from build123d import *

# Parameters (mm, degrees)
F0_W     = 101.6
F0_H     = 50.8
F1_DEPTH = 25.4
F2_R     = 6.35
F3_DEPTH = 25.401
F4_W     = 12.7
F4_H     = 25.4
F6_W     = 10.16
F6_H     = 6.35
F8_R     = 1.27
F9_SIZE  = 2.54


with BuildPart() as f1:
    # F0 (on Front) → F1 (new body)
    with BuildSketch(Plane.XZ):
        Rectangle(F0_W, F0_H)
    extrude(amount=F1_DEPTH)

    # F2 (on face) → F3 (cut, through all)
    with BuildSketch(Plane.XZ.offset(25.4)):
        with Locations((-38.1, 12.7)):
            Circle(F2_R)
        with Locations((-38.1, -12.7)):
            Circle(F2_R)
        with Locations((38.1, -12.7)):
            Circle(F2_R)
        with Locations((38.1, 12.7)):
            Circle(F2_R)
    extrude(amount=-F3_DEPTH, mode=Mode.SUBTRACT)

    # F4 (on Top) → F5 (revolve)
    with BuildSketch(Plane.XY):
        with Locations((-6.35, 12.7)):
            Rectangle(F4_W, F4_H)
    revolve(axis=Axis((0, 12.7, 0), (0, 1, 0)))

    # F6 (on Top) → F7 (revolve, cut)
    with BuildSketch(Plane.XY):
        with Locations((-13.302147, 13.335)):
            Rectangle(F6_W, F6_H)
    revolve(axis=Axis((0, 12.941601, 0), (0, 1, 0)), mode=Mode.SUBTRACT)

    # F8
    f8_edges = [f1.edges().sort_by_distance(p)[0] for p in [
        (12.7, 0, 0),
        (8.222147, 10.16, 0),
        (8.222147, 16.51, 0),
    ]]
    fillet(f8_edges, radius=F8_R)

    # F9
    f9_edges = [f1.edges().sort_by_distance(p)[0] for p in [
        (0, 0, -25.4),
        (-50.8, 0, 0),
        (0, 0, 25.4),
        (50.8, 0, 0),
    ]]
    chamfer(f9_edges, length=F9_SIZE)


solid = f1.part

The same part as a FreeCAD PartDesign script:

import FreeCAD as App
import Part
import Sketcher
Q = App.Units.Quantity


def edges_at(feature, points):
    """Names of the edges that pass closest to the given points."""
    edges = feature.Shape.Edges
    near = lambda p: min(range(len(edges)), key=lambda i: edges[i].distToShape(Part.Vertex(*p))[0])
    return sorted({f"Edge{near(p) + 1}" for p in points})


def add_polygon(sketch, points):
    """Adds a closed chain of lines whose ends are joined by coincident constraints."""
    first, n = sketch.GeometryCount, len(points)
    for a, b in zip(points, points[1:] + points[:1]):
        sketch.addGeometry(Part.LineSegment(App.Vector(*a, 0), App.Vector(*b, 0)), False)
    for i in range(n):
        sketch.addConstraint(Sketcher.Constraint("Coincident", first + i, 2, first + (i + 1) % n, 1))

doc = App.newDocument("Part")
params = doc.addObject("Spreadsheet::Sheet", "Params")
for row, (alias, value) in enumerate([
    ("sketch1_width", "4 in"),
    ("sketch1_height", "2 in"),
    ("pad1_length", "1 in"),
    ("sketch2_diameter", "0.5 in"),
    ("sketch3_height", "1 in"),
    ("sketch3_width", "0.5 in"),
    ("revolution_angle", "360 deg"),
    ("sketch4_width", "0.4 in"),
    ("sketch4_height", "0.25 in"),
    ("groove_angle", "360 deg"),
    ("fillet_radius", "0.05 in"),
    ("chamfer_size", "0.1 in"),
], start=1):
    params.set(f"A{row}", alias)
    params.set(f"B{row}", "=" + value)
    params.setAlias(f"B{row}", alias)

body = doc.addObject("PartDesign::Body", "Body")

sketch1 = doc.addObject("Sketcher::SketchObject", "Sketch")
body.addObject(sketch1)
sketch1.AttachmentSupport = (doc.XZ_Plane, [""])
sketch1.MapMode = "FlatFace"
add_polygon(sketch1, [(-51, 25), (-51, -25), (51, -25), (51, 25)])
sketch1.addConstraint([
    Sketcher.Constraint("Vertical", 0),
    Sketcher.Constraint("Horizontal", 1),
    Sketcher.Constraint("Vertical", 2),
    Sketcher.Constraint("Horizontal", 3),
    Sketcher.Constraint("Symmetric", 0, 2, 2, 2, -1, 1),
    Sketcher.Constraint("DistanceX", 1, 1, 1, 2, Q("4 in")),
    Sketcher.Constraint("DistanceY", 0, 2, 0, 1, Q("2 in")),
])
sketch1.setExpression("Constraints[9]", "Params.sketch1_width")
sketch1.setExpression("Constraints[10]", "Params.sketch1_height")
pad1 = doc.addObject("PartDesign::Pad", "Pad")
body.addObject(pad1)
pad1.Profile = sketch1
pad1.setExpression("Length", "Params.pad1_length")

sketch2 = doc.addObject("Sketcher::SketchObject", "Sketch001")
body.addObject(sketch2)
sketch2.AttachmentSupport = (doc.XZ_Plane, [""])
sketch2.MapMode = "FlatFace"
sketch2.AttachmentOffset = App.Placement(App.Vector(0, 0, 1 * 25.4), App.Rotation())
sketch2.addGeometry([
    Part.Circle(App.Vector(-38, 13, 0), App.Vector(0, 0, 1), 6),
    Part.Circle(App.Vector(-38, -13, 0), App.Vector(0, 0, 1), 6),
    Part.Circle(App.Vector(38, -13, 0), App.Vector(0, 0, 1), 6),
    Part.Circle(App.Vector(38, 13, 0), App.Vector(0, 0, 1), 6),
], False)
sketch2.addConstraint([
    Sketcher.Constraint("Equal", 0, 1),
    Sketcher.Constraint("Equal", 1, 2),
    Sketcher.Constraint("Equal", 2, 3),
    Sketcher.Constraint("Symmetric", 0, 3, 2, 3, -1, 1),
    Sketcher.Constraint("Symmetric", 1, 3, 3, 3, -1, 1),
    Sketcher.Constraint("Symmetric", 1, 3, 2, 3, -2),
    Sketcher.Constraint("Diameter", 0, Q("0.5 in")),
    Sketcher.Constraint("DistanceY", 1, 3, 0, 3, Q("1 in")),
    Sketcher.Constraint("DistanceX", 1, 3, 2, 3, Q("3 in")),
])
sketch2.setExpression("Constraints[6]", "Params.sketch2_diameter")
pocket1 = doc.addObject("PartDesign::Pocket", "Pocket")
body.addObject(pocket1)
pocket1.Profile = sketch2
pocket1.Type = "ThroughAll"

sketch3 = doc.addObject("Sketcher::SketchObject", "Sketch002")
body.addObject(sketch3)
sketch3.AttachmentSupport = (doc.XY_Plane, [""])
sketch3.MapMode = "FlatFace"
add_polygon(sketch3, [(-13, 25), (-13, 0), (0, 0), (0, 25)])
sketch3.addConstraint([
    Sketcher.Constraint("Vertical", 0),
    Sketcher.Constraint("Horizontal", 1),
    Sketcher.Constraint("Vertical", 2),
    Sketcher.Constraint("Horizontal", 3),
    Sketcher.Constraint("Coincident", 1, 2, -1, 1),
    Sketcher.Constraint("DistanceY", 0, 2, 0, 1, Q("1 in")),
    Sketcher.Constraint("DistanceX", 1, 1, 1, 2, Q("0.5 in")),
])
sketch3.setExpression("Constraints[9]", "Params.sketch3_height")
sketch3.setExpression("Constraints[10]", "Params.sketch3_width")
revolution = doc.addObject("PartDesign::Revolution", "Revolution")
body.addObject(revolution)
revolution.Profile = sketch3
revolution.ReferenceAxis = (sketch3, ["V_Axis"])
revolution.setExpression("Angle", "Params.revolution_angle")

sketch4 = doc.addObject("Sketcher::SketchObject", "Sketch003")
body.addObject(sketch4)
sketch4.AttachmentSupport = (doc.XY_Plane, [""])
sketch4.MapMode = "FlatFace"
add_polygon(sketch4, [(-18, 17), (-18, 10), (-8, 10), (-8, 17)])
sketch4.addConstraint([
    Sketcher.Constraint("Vertical", 0),
    Sketcher.Constraint("Horizontal", 1),
    Sketcher.Constraint("Vertical", 2),
    Sketcher.Constraint("Horizontal", 3),
    Sketcher.Constraint("DistanceX", 1, 1, 1, 2, Q("0.4 in")),
    Sketcher.Constraint("DistanceY", 0, 2, 0, 1, Q("0.25 in")),
    Sketcher.Constraint("DistanceY", -1, 1, 0, 2, Q("0.4 in")),
    Sketcher.Constraint("DistanceX", 0, 2, -1, 1, Q("18.382147 mm")),
])
sketch4.setExpression("Constraints[8]", "Params.sketch4_width")
sketch4.setExpression("Constraints[9]", "Params.sketch4_height")
groove = doc.addObject("PartDesign::Groove", "Groove")
body.addObject(groove)
groove.Profile = sketch4
groove.ReferenceAxis = (sketch4, ["V_Axis"])
groove.setExpression("Angle", "Params.groove_angle")
doc.recompute()

fillet = doc.addObject("PartDesign::Fillet", "Fillet")
body.addObject(fillet)
fillet.Base = (groove, edges_at(groove, [(12.7, 0, 0), (8.222, 10.16, 0), (8.222, 16.51, 0)]))
fillet.setExpression("Radius", "Params.fillet_radius")
doc.recompute()

chamfer = doc.addObject("PartDesign::Chamfer", "Chamfer")
body.addObject(chamfer)
chamfer.Base = (fillet, edges_at(fillet, [
    (0, 0, -25.4),
    (-50.8, 0, 0),
    (0, 0, 25.4),
    (50.8, 0, 0),
]))
chamfer.setExpression("Size", "Params.chamfer_size")

doc.recompute()
